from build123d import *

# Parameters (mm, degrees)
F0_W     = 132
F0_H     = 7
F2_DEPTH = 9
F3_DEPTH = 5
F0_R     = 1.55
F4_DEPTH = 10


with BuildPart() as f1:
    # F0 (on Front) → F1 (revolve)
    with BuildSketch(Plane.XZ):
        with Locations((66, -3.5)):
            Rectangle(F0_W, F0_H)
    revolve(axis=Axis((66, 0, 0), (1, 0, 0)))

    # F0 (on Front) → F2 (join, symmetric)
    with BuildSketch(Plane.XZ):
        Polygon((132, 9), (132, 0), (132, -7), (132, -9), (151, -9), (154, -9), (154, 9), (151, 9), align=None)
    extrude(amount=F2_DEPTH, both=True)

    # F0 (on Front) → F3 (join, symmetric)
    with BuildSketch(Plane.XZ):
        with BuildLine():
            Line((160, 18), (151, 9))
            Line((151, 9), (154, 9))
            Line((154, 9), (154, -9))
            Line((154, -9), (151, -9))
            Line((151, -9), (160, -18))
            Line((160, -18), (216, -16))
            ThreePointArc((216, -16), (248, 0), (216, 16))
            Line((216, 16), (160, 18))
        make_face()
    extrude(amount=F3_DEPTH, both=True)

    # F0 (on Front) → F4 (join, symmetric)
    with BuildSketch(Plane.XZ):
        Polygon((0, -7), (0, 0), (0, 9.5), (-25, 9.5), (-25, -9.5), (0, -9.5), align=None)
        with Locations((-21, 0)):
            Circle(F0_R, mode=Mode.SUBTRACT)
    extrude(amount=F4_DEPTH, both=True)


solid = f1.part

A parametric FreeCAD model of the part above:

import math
import FreeCAD as App
import Part
import Sketcher
from FreeCAD import Vector
Q = App.Units.Quantity


def add_polygon(sketch, points):
    """Adds a closed chain of lines whose ends are joined by coincident constraints."""
    first, n = sketch.GeometryCount, len(points)
    for a, b in zip(points, points[1:] + points[:1]):
        sketch.addGeometry(Part.LineSegment(App.Vector(*a, 0), App.Vector(*b, 0)), False)
    for i in range(n):
        sketch.addConstraint(Sketcher.Constraint("Coincident", first + i, 2, first + (i + 1) % n, 1))

doc = App.newDocument("Part")
params = doc.addObject("Spreadsheet::Sheet", "Params")
for row, (alias, value) in enumerate([
    ("sketch1_width", "132 mm"),
    ("sketch1_height", "7 mm"),
    ("revolution_angle", "360 deg"),
    ("sketch2_width", "22 mm"),
    ("sketch2_height", "18 mm"),
    ("pad1_length", "18 mm"),
    ("sketch3_radius", "20 mm"),
    ("sketch3_width", "3 mm"),
    ("sketch3_height", "18 mm"),
    ("pad2_length", "10 mm"),
    ("sketch4_diameter", "3.1 mm"),
    ("sketch4_width", "25 mm"),
    ("sketch4_height", "19 mm"),
    ("pad3_length", "20 mm"),
], start=1):
    params.set(f"A{row}", alias)
    params.set(f"B{row}", "=" + value)
    params.setAlias(f"B{row}", alias)

body = doc.addObject("PartDesign::Body", "Body")

sketch1 = body.newObject("Sketcher::SketchObject", "Sketch")
sketch1.AttachmentSupport = (doc.getObject("XZ_Plane"), [""])
sketch1.MapMode = "FlatFace"
add_polygon(sketch1, [(0, 0), (0, -7), (132, -7), (132, 0)])
sketch1.addConstraint([
    Sketcher.Constraint("Vertical", 0),
    Sketcher.Constraint("Horizontal", 1),
    Sketcher.Constraint("Vertical", 2),
    Sketcher.Constraint("Horizontal", 3),
    Sketcher.Constraint("Coincident", 3, 2, -1, 1),
    Sketcher.Constraint("DistanceX", 1, 1, 1, 2, Q("132 mm")),
    Sketcher.Constraint("DistanceY", 0, 2, 0, 1, Q("7 mm")),
])
sketch1.setExpression("Constraints[9]", "Params.sketch1_width")
sketch1.setExpression("Constraints[10]", "Params.sketch1_height")
revolution = body.newObject("PartDesign::Revolution", "Revolution")
revolution.Profile = sketch1
revolution.ReferenceAxis = (sketch1, ["H_Axis"])
revolution.setExpression("Angle", "Params.revolution_angle")

sketch2 = body.newObject("Sketcher::SketchObject", "Sketch001")
sketch2.AttachmentSupport = (doc.getObject("XZ_Plane"), [""])
sketch2.MapMode = "FlatFace"
add_polygon(sketch2, [(132, 9), (132, -9), (154, -9), (154, 9)])
sketch2.addConstraint([
    Sketcher.Constraint("Vertical", 0),
    Sketcher.Constraint("Horizontal", 1),
    Sketcher.Constraint("Vertical", 2),
    Sketcher.Constraint("Horizontal", 3),
    Sketcher.Constraint("DistanceX", 1, 1, 1, 2, Q("22 mm")),
    Sketcher.Constraint("DistanceY", 0, 2, 0, 1, Q("18 mm")),
    Sketcher.Constraint("DistanceX", -1, 1, 0, 2, Q("132 mm")),
    Sketcher.Constraint("DistanceY", 0, 2, -1, 1, Q("9 mm")),
])
sketch2.setExpression("Constraints[8]", "Params.sketch2_width")
sketch2.setExpression("Constraints[9]", "Params.sketch2_height")
pad1 = body.newObject("PartDesign::Pad", "Pad")
pad1.Profile = sketch2
pad1.setExpression("Length", "Params.pad1_length")
pad1.Midplane = True

sketch3 = body.newObject("Sketcher::SketchObject", "Sketch002")
sketch3.AttachmentSupport = (doc.getObject("XZ_Plane"), [""])
sketch3.MapMode = "FlatFace"
sketch3.addGeometry([
    Part.LineSegment(Vector(160, 18, 0), Vector(151, 9, 0)),
    Part.LineSegment(Vector(151, 9, 0), Vector(154, 9, 0)),
    Part.LineSegment(Vector(154, 9, 0), Vector(154, -9, 0)),
    Part.LineSegment(Vector(154, -9, 0), Vector(151, -9, 0)),
    Part.LineSegment(Vector(151, -9, 0), Vector(160, -18, 0)),
    Part.LineSegment(Vector(160, -18, 0), Vector(216, -16, 0)),
    Part.ArcOfCircle(Part.Circle(Vector(228, 0, 0), Vector(0, 0, 1), 20), math.radians(-126.869898), math.radians(126.869898)),
    Part.LineSegment(Vector(216, 16, 0), Vector(160, 18, 0)),
], False)
sketch3.addConstraint([
    Sketcher.Constraint("Coincident", 0, 2, 1, 1),
    Sketcher.Constraint("Coincident", 1, 2, 2, 1),
    Sketcher.Constraint("Coincident", 2, 2, 3, 1),
    Sketcher.Constraint("Coincident", 3, 2, 4, 1),
    Sketcher.Constraint("Coincident", 4, 2, 5, 1),
    Sketcher.Constraint("Coincident", 5, 2, 6, 1),
    Sketcher.Constraint("Coincident", 6, 2, 7, 1),
    Sketcher.Constraint("Coincident", 7, 2, 0, 1),
    Sketcher.Constraint("Horizontal", 1),
    Sketcher.Constraint("Vertical", 2),
    Sketcher.Constraint("Horizontal", 3),
    Sketcher.Constraint("Symmetric", 0, 2, 3, 2, -1),
    Sketcher.Constraint("Symmetric", 5, 2, 6, 2, -1),
    Sketcher.Constraint("Symmetric", 4, 2, 7, 2, -1),
    Sketcher.Constraint("Perpendicular", 0, 4),
    Sketcher.Constraint("Radius", 6, Q("20 mm")),
    Sketcher.Constraint("DistanceX", 1, 1, 1, 2, Q("3 mm")),
    Sketcher.Constraint("DistanceY", 2, 2, 2, 1, Q("18 mm")),
    Sketcher.Constraint("DistanceX", -1, 1, 6, 3, Q("228 mm")),
    Sketcher.Constraint("DistanceX", -1, 1, 0, 2, Q("151 mm")),
    Sketcher.Constraint("DistanceX", -1, 1, 4, 2, Q("160 mm")),
    Sketcher.Constraint("DistanceX", -1, 1, 5, 2, Q("216 mm")),
])
sketch3.setExpression("Constraints[15]", "Params.sketch3_radius")
sketch3.setExpression("Constraints[16]", "Params.sketch3_width")
sketch3.setExpression("Constraints[17]", "Params.sketch3_height")
pad2 = body.newObject("PartDesign::Pad", "Pad001")
pad2.Profile = sketch3
pad2.setExpression("Length", "Params.pad2_length")
pad2.Midplane = True

sketch4 = body.newObject("Sketcher::SketchObject", "Sketch003")
sketch4.AttachmentSupport = (doc.getObject("XZ_Plane"), [""])
sketch4.MapMode = "FlatFace"
add_polygon(sketch4, [(0, 9.5), (-25, 9.5), (-25, -9.5), (0, -9.5)])
sketch4.addGeometry(Part.Circle(Vector(-21, 0, 0), Vector(0, 0, 1), 1.55), False)
sketch4.addConstraint([
    Sketcher.Constraint("Horizontal", 0),
    Sketcher.Constraint("Vertical", 1),
    Sketcher.Constraint("Horizontal", 2),
    Sketcher.Constraint("Vertical", 3),
    Sketcher.Constraint("Symmetric", 2, 2, 3, 2, -1, 1),
    Sketcher.Constraint("PointOnObject", 4, 3, -1),
    Sketcher.Constraint("Diameter", 4, Q("3.1 mm")),
    Sketcher.Constraint("DistanceX", 0, 2, 0, 1, Q("25 mm")),
    Sketcher.Constraint("DistanceY", 1, 2, 1, 1, Q("19 mm")),
    Sketcher.Constraint("DistanceX", 4, 3, -1, 1, Q("21 mm")),
])
sketch4.setExpression("Constraints[10]", "Params.sketch4_diameter")
sketch4.setExpression("Constraints[11]", "Params.sketch4_width")
sketch4.setExpression("Constraints[12]", "Params.sketch4_height")
pad3 = body.newObject("PartDesign::Pad", "Pad002")
pad3.Profile = sketch4
pad3.setExpression("Length", "Params.pad3_length")
pad3.Midplane = True

doc.recompute()
